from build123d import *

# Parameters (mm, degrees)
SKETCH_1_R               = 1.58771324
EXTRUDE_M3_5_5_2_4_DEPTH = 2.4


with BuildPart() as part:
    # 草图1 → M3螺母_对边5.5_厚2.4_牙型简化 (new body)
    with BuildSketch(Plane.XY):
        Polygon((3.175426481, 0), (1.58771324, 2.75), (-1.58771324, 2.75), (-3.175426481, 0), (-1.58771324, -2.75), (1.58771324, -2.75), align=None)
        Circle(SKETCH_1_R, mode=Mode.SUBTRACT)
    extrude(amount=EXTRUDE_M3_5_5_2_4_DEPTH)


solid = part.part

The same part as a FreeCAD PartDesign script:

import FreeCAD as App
import Part
import Sketcher
Q = App.Units.Quantity

doc = App.newDocument("Part")
params = doc.addObject("Spreadsheet::Sheet", "Params")
for row, (alias, value) in enumerate([
    ("pad1_length", "2.4 mm"),
], start=1):
    params.set(f"A{row}", alias)
    params.set(f"B{row}", "=" + value)
    params.setAlias(f"B{row}", alias)

body = doc.addObject("PartDesign::Body", "Body")

# Sketch on XY plane
sketch1 = body.newObject("Sketcher::SketchObject", "Sketch")
sketch1.AttachmentSupport = (doc.getObject("XY_Plane"), [""])
sketch1.MapMode = "FlatFace"
sketch1.addGeometry([
    Part.LineSegment(App.Vector(3.2, 0, 0), App.Vector(1.6, 2.8, 0)),  # 0
    Part.LineSegment(App.Vector(1.6, 2.8, 0), App.Vector(-1.6, 2.8, 0)),  # 1
    Part.LineSegment(App.Vector(-1.6, 2.8, 0), App.Vector(-3.2, 0, 0)),  # 2
    Part.LineSegment(App.Vector(-3.2, 0, 0), App.Vector(-1.6, -2.8, 0)),  # 3
    Part.LineSegment(App.Vector(-1.6, -2.8, 0), App.Vector(1.6, -2.8, 0)),  # 4
    Part.LineSegment(App.Vector(1.6, -2.8, 0), App.Vector(3.2, 0, 0)),  # 5
    Part.Circle(App.Vector(0, 0, 0), App.Vector(0, 0, 1), 1.6),  # 6
], False)
sketch1.addConstraint([
    Sketcher.Constraint("Coincident", 0, 2, 1, 1),
    Sketcher.Constraint("Coincident", 1, 2, 2, 1),
    Sketcher.Constraint("Coincident", 2, 2, 3, 1),
    Sketcher.Constraint("Coincident", 3, 2, 4, 1),
    Sketcher.Constraint("Coincident", 4, 2, 5, 1),
    Sketcher.Constraint("Coincident", 5, 2, 0, 1),
    Sketcher.Constraint("Horizontal", 1),
    Sketcher.Constraint("Horizontal", 4),
    Sketcher.Constraint("Coincident", 6, 3, -1, 1),
    Sketcher.Constraint("Symmetric", 0, 2, 3, 2, -1, 1),
    Sketcher.Constraint("Symmetric", 2, 2, 5, 2, -1, 1),
    Sketcher.Constraint("PointOnObject", 2, 2, -1),
    Sketcher.Constraint("Parallel", 2, 5),
    Sketcher.Constraint("Vertical", 1, 2, 3, 2),
    Sketcher.Constraint("Angle", 0, Q("120 deg")),
    Sketcher.Constraint("DistanceY", 3, 2, 1, 2, 5.5),
    Sketcher.Constraint("Diameter", 6, 3.175426),
    Sketcher.Constraint("DistanceX", 1, 2, 1, 1, 3.175426),
])
pad1 = body.newObject("PartDesign::Pad", "Pad")
pad1.Profile = sketch1
pad1.setExpression("Length", "Params.pad1_length")

doc.recompute()
